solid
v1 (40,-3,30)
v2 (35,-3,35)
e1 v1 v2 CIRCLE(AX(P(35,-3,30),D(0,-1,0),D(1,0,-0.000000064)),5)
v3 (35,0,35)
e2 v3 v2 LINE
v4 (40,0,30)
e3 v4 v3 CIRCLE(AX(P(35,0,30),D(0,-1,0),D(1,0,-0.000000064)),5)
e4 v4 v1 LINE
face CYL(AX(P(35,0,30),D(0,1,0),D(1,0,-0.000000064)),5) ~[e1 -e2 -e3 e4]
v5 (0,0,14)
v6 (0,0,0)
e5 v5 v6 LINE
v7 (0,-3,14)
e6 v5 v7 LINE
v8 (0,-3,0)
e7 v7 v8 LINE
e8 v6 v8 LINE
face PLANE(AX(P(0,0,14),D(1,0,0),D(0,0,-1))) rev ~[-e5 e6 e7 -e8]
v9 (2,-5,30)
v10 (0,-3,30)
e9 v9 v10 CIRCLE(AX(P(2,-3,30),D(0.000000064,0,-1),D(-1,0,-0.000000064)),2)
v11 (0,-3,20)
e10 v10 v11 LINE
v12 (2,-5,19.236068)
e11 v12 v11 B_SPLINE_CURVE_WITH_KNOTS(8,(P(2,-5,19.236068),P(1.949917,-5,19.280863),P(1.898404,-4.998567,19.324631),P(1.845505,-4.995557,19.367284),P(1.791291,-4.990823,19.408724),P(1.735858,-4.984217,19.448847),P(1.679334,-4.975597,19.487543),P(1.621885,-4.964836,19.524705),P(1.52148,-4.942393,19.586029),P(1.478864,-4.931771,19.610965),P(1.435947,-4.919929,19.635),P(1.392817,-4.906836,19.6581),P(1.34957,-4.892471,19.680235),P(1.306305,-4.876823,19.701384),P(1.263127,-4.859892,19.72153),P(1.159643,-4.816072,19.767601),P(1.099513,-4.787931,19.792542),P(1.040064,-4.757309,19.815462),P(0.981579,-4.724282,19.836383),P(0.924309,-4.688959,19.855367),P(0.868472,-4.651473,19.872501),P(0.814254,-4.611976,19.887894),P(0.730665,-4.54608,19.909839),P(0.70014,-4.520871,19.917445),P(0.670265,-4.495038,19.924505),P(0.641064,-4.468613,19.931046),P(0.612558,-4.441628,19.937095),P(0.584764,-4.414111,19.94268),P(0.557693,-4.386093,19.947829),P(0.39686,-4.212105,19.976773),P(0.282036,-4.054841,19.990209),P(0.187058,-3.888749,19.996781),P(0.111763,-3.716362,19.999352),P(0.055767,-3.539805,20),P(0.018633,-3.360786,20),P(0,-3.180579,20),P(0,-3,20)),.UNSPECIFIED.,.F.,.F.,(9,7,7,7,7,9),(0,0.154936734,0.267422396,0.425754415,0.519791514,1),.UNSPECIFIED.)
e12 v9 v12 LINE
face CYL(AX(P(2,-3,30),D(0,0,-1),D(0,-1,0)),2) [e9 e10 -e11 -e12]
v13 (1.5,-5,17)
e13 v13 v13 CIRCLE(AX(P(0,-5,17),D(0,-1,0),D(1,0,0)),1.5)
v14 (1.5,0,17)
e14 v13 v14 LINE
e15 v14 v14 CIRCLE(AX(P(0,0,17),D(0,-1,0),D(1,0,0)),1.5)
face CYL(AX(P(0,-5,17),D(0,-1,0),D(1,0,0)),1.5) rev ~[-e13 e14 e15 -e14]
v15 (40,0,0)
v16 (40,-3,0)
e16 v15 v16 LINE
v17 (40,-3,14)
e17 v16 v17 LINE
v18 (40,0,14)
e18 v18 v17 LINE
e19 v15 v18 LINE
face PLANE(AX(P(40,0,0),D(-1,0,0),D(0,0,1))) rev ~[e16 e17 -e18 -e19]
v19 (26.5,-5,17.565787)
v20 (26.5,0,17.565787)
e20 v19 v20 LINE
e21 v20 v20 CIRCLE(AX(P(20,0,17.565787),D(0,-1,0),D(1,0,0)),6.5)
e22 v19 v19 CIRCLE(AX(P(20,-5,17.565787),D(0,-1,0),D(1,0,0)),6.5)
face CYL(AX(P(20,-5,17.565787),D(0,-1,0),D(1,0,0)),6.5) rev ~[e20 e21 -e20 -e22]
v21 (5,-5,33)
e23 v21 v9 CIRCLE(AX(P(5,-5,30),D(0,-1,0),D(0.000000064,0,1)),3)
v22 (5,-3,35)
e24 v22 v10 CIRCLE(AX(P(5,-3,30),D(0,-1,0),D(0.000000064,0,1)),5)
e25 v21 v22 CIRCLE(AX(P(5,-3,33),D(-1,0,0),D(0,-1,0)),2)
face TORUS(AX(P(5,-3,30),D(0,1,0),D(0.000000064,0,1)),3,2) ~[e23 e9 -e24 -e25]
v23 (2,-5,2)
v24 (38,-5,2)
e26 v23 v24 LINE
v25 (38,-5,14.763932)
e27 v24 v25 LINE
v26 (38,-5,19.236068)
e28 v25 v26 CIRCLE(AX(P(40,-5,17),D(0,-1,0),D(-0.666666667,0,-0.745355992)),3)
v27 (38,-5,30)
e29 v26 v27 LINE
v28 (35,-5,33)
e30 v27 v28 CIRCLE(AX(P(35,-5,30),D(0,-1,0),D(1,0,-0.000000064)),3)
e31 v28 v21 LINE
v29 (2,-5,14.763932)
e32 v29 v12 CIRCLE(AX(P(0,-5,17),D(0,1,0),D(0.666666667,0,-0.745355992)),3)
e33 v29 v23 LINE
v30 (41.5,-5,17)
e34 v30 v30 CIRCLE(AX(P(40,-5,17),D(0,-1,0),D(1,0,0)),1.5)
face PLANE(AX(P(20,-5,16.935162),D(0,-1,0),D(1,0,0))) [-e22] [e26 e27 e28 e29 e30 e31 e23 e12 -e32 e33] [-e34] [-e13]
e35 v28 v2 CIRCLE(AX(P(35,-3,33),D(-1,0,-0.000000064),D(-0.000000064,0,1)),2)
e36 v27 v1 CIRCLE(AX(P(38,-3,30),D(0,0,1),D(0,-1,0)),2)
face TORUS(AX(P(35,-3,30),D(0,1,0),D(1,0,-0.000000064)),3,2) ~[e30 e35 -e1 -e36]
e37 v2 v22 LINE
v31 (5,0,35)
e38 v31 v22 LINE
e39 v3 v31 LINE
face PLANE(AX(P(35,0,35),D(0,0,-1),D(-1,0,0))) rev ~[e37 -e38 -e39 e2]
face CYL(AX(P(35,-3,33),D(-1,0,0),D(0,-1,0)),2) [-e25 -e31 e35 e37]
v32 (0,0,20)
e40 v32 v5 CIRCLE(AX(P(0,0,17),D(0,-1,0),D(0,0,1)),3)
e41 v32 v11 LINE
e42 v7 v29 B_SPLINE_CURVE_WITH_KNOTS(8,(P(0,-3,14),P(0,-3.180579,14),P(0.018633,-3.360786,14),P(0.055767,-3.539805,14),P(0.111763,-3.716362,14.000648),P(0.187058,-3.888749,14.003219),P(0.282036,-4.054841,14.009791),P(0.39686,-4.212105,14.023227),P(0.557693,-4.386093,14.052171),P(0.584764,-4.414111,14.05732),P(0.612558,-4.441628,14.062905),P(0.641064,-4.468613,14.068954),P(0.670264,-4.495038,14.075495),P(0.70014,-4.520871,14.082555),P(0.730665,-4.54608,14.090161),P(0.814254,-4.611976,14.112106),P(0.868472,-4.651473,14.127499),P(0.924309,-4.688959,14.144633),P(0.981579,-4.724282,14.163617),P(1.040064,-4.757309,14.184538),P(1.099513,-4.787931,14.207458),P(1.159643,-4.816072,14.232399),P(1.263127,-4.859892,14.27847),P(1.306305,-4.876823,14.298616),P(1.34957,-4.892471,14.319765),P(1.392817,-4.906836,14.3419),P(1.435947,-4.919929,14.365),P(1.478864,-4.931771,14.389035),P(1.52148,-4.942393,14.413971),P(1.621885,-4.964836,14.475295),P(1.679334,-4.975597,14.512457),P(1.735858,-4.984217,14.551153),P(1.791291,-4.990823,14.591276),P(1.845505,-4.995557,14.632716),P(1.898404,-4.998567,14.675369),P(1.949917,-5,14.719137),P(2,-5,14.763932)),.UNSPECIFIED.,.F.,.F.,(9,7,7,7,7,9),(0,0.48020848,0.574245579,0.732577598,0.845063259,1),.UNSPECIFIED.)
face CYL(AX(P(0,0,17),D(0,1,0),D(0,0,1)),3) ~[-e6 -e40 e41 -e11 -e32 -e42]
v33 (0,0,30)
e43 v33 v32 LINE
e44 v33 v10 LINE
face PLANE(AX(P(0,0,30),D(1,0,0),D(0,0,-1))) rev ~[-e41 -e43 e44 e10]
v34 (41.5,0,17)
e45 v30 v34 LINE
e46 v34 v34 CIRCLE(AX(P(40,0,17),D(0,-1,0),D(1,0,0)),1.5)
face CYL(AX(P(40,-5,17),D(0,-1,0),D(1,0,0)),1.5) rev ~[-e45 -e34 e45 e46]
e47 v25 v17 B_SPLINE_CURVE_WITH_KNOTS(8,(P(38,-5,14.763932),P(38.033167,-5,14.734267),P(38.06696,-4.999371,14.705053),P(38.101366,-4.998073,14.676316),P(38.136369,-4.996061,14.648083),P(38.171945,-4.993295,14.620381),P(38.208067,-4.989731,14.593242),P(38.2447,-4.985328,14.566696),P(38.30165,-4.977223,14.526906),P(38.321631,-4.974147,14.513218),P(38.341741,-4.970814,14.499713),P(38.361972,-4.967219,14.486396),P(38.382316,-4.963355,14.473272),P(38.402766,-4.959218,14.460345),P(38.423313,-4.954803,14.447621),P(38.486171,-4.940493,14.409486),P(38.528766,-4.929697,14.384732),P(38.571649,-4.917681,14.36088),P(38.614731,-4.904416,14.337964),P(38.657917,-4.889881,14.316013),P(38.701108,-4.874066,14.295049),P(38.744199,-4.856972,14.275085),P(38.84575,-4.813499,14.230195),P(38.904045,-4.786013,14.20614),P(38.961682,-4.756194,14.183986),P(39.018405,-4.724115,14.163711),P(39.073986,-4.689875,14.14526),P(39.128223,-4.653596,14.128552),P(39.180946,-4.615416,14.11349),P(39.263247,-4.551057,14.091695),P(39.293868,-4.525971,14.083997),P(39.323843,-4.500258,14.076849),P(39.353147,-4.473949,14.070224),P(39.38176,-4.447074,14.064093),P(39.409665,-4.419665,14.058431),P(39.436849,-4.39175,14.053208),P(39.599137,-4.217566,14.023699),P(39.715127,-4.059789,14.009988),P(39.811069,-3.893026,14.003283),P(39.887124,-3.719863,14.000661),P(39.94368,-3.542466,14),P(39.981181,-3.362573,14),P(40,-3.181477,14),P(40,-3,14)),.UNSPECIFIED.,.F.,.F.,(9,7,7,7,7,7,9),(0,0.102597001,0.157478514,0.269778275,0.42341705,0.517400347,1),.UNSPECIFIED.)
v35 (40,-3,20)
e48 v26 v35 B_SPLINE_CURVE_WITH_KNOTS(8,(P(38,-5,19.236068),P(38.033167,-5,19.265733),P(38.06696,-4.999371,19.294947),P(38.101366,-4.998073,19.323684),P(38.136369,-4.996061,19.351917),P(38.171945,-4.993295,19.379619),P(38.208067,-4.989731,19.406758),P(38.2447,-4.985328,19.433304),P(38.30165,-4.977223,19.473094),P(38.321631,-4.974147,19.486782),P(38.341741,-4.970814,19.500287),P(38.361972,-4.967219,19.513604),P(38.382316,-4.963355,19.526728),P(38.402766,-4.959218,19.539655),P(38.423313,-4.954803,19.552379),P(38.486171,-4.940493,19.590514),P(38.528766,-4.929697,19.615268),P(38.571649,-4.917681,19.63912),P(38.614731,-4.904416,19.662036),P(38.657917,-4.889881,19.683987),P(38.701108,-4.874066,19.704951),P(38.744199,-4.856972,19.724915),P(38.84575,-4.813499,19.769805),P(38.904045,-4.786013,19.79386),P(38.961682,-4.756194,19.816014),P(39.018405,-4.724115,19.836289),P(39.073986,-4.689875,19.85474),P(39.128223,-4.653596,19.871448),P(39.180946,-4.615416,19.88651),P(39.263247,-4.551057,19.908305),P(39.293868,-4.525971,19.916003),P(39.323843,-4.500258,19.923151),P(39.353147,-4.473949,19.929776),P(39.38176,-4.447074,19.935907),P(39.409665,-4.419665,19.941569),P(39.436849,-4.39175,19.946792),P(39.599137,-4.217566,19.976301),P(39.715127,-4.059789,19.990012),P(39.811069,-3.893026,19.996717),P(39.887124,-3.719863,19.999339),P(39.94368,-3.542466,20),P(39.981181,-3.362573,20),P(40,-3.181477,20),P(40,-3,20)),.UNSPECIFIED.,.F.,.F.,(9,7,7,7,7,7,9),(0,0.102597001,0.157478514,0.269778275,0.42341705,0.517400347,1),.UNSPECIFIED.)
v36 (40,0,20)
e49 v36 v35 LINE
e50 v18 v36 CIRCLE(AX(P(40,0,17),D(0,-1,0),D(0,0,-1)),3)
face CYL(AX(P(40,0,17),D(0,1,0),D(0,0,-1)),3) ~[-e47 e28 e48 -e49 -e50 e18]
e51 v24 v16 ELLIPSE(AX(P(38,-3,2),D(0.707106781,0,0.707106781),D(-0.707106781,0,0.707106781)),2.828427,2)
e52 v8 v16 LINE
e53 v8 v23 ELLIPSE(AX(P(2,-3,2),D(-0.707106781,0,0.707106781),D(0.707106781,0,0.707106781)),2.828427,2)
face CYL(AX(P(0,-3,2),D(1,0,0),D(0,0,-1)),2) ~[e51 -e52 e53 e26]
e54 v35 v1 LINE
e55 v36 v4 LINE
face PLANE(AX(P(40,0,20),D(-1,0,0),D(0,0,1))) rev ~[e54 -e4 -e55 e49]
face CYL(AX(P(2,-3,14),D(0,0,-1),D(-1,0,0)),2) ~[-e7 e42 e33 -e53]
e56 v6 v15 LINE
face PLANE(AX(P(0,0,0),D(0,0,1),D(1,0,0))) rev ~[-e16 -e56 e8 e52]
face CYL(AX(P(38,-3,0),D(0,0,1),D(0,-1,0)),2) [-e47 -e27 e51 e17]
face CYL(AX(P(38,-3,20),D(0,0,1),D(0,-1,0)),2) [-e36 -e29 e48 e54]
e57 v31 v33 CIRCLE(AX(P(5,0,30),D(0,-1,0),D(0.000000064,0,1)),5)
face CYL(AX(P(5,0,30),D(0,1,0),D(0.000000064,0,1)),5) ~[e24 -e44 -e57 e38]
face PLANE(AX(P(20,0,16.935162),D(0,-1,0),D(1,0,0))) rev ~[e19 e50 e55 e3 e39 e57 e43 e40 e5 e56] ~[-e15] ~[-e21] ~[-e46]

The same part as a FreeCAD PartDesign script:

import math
import FreeCAD as App
import Part
import Sketcher

V = App.Vector
Q = App.Units.Quantity


def edges_at(feature, points):
    """Names of the edges that pass closest to the given points."""
    edges = feature.Shape.Edges
    near = lambda p: min(range(len(edges)), key=lambda i: edges[i].distToShape(Part.Vertex(*p))[0])
    return sorted({f"Edge{near(p) + 1}" for p in points})

doc = App.newDocument("Part")
body = doc.addObject("PartDesign::Body", "Body")

sketch1 = body.newObject("Sketcher::SketchObject", "Sketch")
sketch1.AttachmentSupport = (doc.getObject("XZ_Plane"), [""])
sketch1.MapMode = "FlatFace"
sketch1.addGeometry([
    Part.LineSegment(V(0, 14, 0), V(0, 0, 0)),
    Part.LineSegment(V(0, 0, 0), V(40, 0, 0)),
    Part.LineSegment(V(40, 0, 0), V(40, 14, 0)),
    Part.ArcOfCircle(Part.Circle(V(40, 17, 0), V(0, 0, 1), 3), math.radians(-90), math.radians(90)),
    Part.LineSegment(V(40, 20, 0), V(40, 30, 0)),
    Part.ArcOfCircle(Part.Circle(V(35, 30, 0), V(0, 0, 1), 5), math.radians(-0.000004), math.radians(90.000004)),
    Part.LineSegment(V(35, 35, 0), V(5, 35, 0)),
    Part.ArcOfCircle(Part.Circle(V(5, 30, 0), V(0, 0, 1), 5), math.radians(89.999996), math.radians(180.000004)),
    Part.LineSegment(V(0, 30, 0), V(0, 20, 0)),
    Part.ArcOfCircle(Part.Circle(V(0, 17, 0), V(0, 0, 1), 3), math.radians(90), math.radians(270)),
], False)
sketch1.addConstraint([
    Sketcher.Constraint("Coincident", 0, 2, 1, 1),
    Sketcher.Constraint("Coincident", 1, 2, 2, 1),
    Sketcher.Constraint("Coincident", 2, 2, 3, 1),
    Sketcher.Constraint("Coincident", 3, 2, 4, 1),
    Sketcher.Constraint("Tangent", 4, 2, 5, 1),
    Sketcher.Constraint("Tangent", 5, 2, 6, 1),
    Sketcher.Constraint("Tangent", 6, 2, 7, 1),
    Sketcher.Constraint("Tangent", 7, 2, 8, 1),
    Sketcher.Constraint("Coincident", 8, 2, 9, 1),
    Sketcher.Constraint("Coincident", 9, 2, 0, 1),
    Sketcher.Constraint("Vertical", 0),
    Sketcher.Constraint("Horizontal", 1),
    Sketcher.Constraint("Vertical", 2),
    Sketcher.Constraint("Vertical", 4),
    Sketcher.Constraint("Horizontal", 6),
    Sketcher.Constraint("Vertical", 8),
    Sketcher.Constraint("Coincident", 0, 2, -1, 1),
    Sketcher.Constraint("Equal", 5, 7),
    Sketcher.Constraint("Equal", 3, 9),
    Sketcher.Constraint("PointOnObject", 9, 3, -2),
    Sketcher.Constraint("PointOnObject", 7, 2, -2),
    Sketcher.Constraint("Horizontal", 3, 3, 9, 3),
    Sketcher.Constraint("Vertical", 3, 3, 1, 2),
    Sketcher.Constraint("Vertical", 2, 2, 3, 2),
    Sketcher.Constraint("Radius", 3, Q("3 mm")),
    Sketcher.Constraint("Radius", 5, Q("5 mm")),
    Sketcher.Constraint("DistanceX", 1, 1, 1, 2, Q("40 mm")),
    Sketcher.Constraint("DistanceY", 0, 2, 0, 1, Q("14 mm")),
    Sketcher.Constraint("DistanceY", 4, 1, 4, 2, Q("10 mm")),
])
pad1 = body.newObject("PartDesign::Pad", "Pad")
pad1.Profile = sketch1
pad1.Length = 5

sketch2 = body.newObject("Sketcher::SketchObject", "Sketch001")
sketch2.AttachmentSupport = (doc.getObject("XZ_Plane"), [""])
sketch2.MapMode = "FlatFace"
sketch2.AttachmentOffset = App.Placement(V(0, 0, 5), App.Rotation())
sketch2.addGeometry([
    Part.Circle(V(0, 17, 0), V(0, 0, 1), 1.5),
    Part.Circle(V(40, 17, 0), V(0, 0, 1), 1.5),
], False)
sketch2.addConstraint([
    Sketcher.Constraint("Equal", 0, 1),
    Sketcher.Constraint("PointOnObject", 0, 3, -2),
    Sketcher.Constraint("Horizontal", 0, 3, 1, 3),
    Sketcher.Constraint("Diameter", 0, Q("3 mm")),
    Sketcher.Constraint("DistanceY", -1, 1, 0, 3, Q("17 mm")),
    Sketcher.Constraint("DistanceX", -1, 1, 1, 3, Q("40 mm")),
])
pocket1 = body.newObject("PartDesign::Pocket", "Pocket")
pocket1.Profile = sketch2
pocket1.Length = 25

sketch3 = body.newObject("Sketcher::SketchObject", "Sketch002")
sketch3.AttachmentSupport = (doc.getObject("XZ_Plane"), [""])
sketch3.MapMode = "FlatFace"
sketch3.AttachmentOffset = App.Placement(V(0, 0, 5), App.Rotation())
sketch3.addGeometry(Part.Circle(V(20, 17.565787, 0), V(0, 0, 1), 6.5), False)
sketch3.addConstraint([
    Sketcher.Constraint("Diameter", 0, Q("13 mm")),
    Sketcher.Constraint("DistanceX", -1, 1, 0, 3, Q("20 mm")),
    Sketcher.Constraint("DistanceY", -1, 1, 0, 3, Q("17.565787 mm")),
])
pocket2 = body.newObject("PartDesign::Pocket", "Pocket001")
pocket2.Profile = sketch3
pocket2.Length = 25
doc.recompute()

fillet = body.newObject("PartDesign::Fillet", "Fillet")
fillet.Base = (pocket2, edges_at(pocket2, [
    (0, -5, 25),
    (1.464, -5, 33.536),
    (40, -5, 7),
    (20, -5, 0),
    (0, -5, 7),
]))
fillet.Radius = 2

doc.recompute()
